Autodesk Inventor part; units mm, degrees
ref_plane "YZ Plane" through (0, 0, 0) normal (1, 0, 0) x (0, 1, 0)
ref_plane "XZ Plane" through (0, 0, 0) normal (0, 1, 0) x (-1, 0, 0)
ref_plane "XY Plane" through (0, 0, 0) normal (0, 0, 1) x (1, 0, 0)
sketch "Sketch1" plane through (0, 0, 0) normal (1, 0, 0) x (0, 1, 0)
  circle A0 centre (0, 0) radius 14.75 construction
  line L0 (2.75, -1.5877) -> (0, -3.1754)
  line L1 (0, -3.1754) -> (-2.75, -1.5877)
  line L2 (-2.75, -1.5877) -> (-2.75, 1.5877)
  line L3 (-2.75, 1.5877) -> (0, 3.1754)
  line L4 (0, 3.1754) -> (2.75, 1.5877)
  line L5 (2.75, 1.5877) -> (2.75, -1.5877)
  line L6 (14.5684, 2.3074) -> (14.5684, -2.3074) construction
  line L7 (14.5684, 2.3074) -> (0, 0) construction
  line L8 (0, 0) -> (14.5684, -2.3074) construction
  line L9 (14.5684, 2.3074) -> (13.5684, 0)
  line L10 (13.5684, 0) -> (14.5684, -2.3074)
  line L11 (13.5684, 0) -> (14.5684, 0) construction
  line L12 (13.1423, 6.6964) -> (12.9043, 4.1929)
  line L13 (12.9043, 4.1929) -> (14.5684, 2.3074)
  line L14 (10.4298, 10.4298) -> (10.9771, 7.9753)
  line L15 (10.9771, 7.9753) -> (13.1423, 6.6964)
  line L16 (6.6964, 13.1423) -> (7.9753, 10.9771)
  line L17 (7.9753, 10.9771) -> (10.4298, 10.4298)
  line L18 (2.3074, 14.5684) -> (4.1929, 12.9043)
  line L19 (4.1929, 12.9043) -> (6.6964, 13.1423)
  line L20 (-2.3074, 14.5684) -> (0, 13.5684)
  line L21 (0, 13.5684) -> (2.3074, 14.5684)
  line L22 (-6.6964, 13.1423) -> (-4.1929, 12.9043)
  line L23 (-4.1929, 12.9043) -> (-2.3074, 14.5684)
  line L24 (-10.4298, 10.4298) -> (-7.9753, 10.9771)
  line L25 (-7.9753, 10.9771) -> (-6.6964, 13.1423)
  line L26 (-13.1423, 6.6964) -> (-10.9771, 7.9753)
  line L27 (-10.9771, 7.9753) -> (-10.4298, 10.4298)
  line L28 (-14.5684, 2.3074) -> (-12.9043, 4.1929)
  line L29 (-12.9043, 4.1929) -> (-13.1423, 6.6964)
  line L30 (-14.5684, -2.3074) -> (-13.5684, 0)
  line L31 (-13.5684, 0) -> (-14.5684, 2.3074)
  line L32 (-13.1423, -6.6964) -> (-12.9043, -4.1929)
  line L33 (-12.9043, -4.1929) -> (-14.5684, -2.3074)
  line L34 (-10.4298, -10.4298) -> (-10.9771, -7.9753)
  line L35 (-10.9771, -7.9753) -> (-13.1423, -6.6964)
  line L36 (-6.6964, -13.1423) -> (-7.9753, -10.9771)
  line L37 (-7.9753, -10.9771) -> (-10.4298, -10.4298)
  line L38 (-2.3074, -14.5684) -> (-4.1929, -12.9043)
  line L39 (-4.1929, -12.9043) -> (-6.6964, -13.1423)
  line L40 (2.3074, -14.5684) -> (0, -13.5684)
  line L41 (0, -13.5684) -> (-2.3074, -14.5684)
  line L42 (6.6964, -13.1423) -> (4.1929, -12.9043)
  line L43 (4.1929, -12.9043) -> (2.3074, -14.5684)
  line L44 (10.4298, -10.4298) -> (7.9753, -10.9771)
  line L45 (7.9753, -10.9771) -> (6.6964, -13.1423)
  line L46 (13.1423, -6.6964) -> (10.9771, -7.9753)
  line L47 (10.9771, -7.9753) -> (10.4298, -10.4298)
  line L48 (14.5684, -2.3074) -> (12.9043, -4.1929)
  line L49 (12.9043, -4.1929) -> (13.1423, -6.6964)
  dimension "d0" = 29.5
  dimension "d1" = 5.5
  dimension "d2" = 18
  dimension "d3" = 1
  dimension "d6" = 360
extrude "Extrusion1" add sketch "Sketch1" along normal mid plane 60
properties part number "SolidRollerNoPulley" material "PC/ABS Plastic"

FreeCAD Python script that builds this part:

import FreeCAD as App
import Part
import Sketcher
from FreeCAD import Vector
Q = App.Units.Quantity

doc = App.newDocument("Part")
body = doc.addObject("PartDesign::Body", "Body")

# Sketch on YZ plane
sketch1 = doc.addObject("Sketcher::SketchObject", "Sketch")
body.addObject(sketch1)
sketch1.AttachmentSupport = (doc.YZ_Plane, [""])
sketch1.MapMode = "FlatFace"
sketch1.addGeometry([
    Part.LineSegment(Vector(13.6, 0, 0), Vector(14.6, 2.3, 0)),  # 0
    Part.LineSegment(Vector(14.6, 2.3, 0), Vector(12.9, 4.2, 0)),  # 1
    Part.LineSegment(Vector(12.9, 4.2, 0), Vector(13.1, 6.7, 0)),  # 2
    Part.LineSegment(Vector(13.1, 6.7, 0), Vector(11, 8, 0)),  # 3
    Part.LineSegment(Vector(11, 8, 0), Vector(10.4, 10.4, 0)),  # 4
    Part.LineSegment(Vector(10.4, 10.4, 0), Vector(8, 11, 0)),  # 5
    Part.LineSegment(Vector(8, 11, 0), Vector(6.7, 13.1, 0)),  # 6
    Part.LineSegment(Vector(6.7, 13.1, 0), Vector(4.2, 12.9, 0)),  # 7
    Part.LineSegment(Vector(4.2, 12.9, 0), Vector(2.3, 14.6, 0)),  # 8
    Part.LineSegment(Vector(2.3, 14.6, 0), Vector(0, 13.6, 0)),  # 9
    Part.LineSegment(Vector(0, 13.6, 0), Vector(-2.3, 14.6, 0)),  # 10
    Part.LineSegment(Vector(-2.3, 14.6, 0), Vector(-4.2, 12.9, 0)),  # 11
    Part.LineSegment(Vector(-4.2, 12.9, 0), Vector(-6.7, 13.1, 0)),  # 12
    Part.LineSegment(Vector(-6.7, 13.1, 0), Vector(-8, 11, 0)),  # 13
    Part.LineSegment(Vector(-8, 11, 0), Vector(-10.4, 10.4, 0)),  # 14
    Part.LineSegment(Vector(-10.4, 10.4, 0), Vector(-11, 8, 0)),  # 15
    Part.LineSegment(Vector(-11, 8, 0), Vector(-13.1, 6.7, 0)),  # 16
    Part.LineSegment(Vector(-13.1, 6.7, 0), Vector(-12.9, 4.2, 0)),  # 17
    Part.LineSegment(Vector(-12.9, 4.2, 0), Vector(-14.6, 2.3, 0)),  # 18
    Part.LineSegment(Vector(-14.6, 2.3, 0), Vector(-13.6, 0, 0)),  # 19
    Part.LineSegment(Vector(-13.6, 0, 0), Vector(-14.6, -2.3, 0)),  # 20
    Part.LineSegment(Vector(-14.6, -2.3, 0), Vector(-12.9, -4.2, 0)),  # 21
    Part.LineSegment(Vector(-12.9, -4.2, 0), Vector(-13.1, -6.7, 0)),  # 22
    Part.LineSegment(Vector(-13.1, -6.7, 0), Vector(-11, -8, 0)),  # 23
    Part.LineSegment(Vector(-11, -8, 0), Vector(-10.4, -10.4, 0)),  # 24
    Part.LineSegment(Vector(-10.4, -10.4, 0), Vector(-8, -11, 0)),  # 25
    Part.LineSegment(Vector(-8, -11, 0), Vector(-6.7, -13.1, 0)),  # 26
    Part.LineSegment(Vector(-6.7, -13.1, 0), Vector(-4.2, -12.9, 0)),  # 27
    Part.LineSegment(Vector(-4.2, -12.9, 0), Vector(-2.3, -14.6, 0)),  # 28
    Part.LineSegment(Vector(-2.3, -14.6, 0), Vector(0, -13.6, 0)),  # 29
    Part.LineSegment(Vector(0, -13.6, 0), Vector(2.3, -14.6, 0)),  # 30
    Part.LineSegment(Vector(2.3, -14.6, 0), Vector(4.2, -12.9, 0)),  # 31
    Part.LineSegment(Vector(4.2, -12.9, 0), Vector(6.7, -13.1, 0)),  # 32
    Part.LineSegment(Vector(6.7, -13.1, 0), Vector(8, -11, 0)),  # 33
    Part.LineSegment(Vector(8, -11, 0), Vector(10.4, -10.4, 0)),  # 34
    Part.LineSegment(Vector(10.4, -10.4, 0), Vector(11, -8, 0)),  # 35
    Part.LineSegment(Vector(11, -8, 0), Vector(13.1, -6.7, 0)),  # 36
    Part.LineSegment(Vector(13.1, -6.7, 0), Vector(12.9, -4.2, 0)),  # 37
    Part.LineSegment(Vector(12.9, -4.2, 0), Vector(14.6, -2.3, 0)),  # 38
    Part.LineSegment(Vector(14.6, -2.3, 0), Vector(13.6, 0, 0)),  # 39
    Part.LineSegment(Vector(2.8, 1.6, 0), Vector(2.8, -1.6, 0)),  # 40
    Part.LineSegment(Vector(2.8, -1.6, 0), Vector(0, -3.2, 0)),  # 41
    Part.LineSegment(Vector(0, -3.2, 0), Vector(-2.8, -1.6, 0)),  # 42
    Part.LineSegment(Vector(-2.8, -1.6, 0), Vector(-2.8, 1.6, 0)),  # 43
    Part.LineSegment(Vector(-2.8, 1.6, 0), Vector(0, 3.2, 0)),  # 44
    Part.LineSegment(Vector(0, 3.2, 0), Vector(2.8, 1.6, 0)),  # 45
], False)
sketch1.addConstraint([
    Sketcher.Constraint("Coincident", 0, 2, 1, 1),
    Sketcher.Constraint("Coincident", 1, 2, 2, 1),
    Sketcher.Constraint("Coincident", 2, 2, 3, 1),
    Sketcher.Constraint("Coincident", 3, 2, 4, 1),
    Sketcher.Constraint("Coincident", 4, 2, 5, 1),
    Sketcher.Constraint("Coincident", 5, 2, 6, 1),
    Sketcher.Constraint("Coincident", 6, 2, 7, 1),
    Sketcher.Constraint("Coincident", 7, 2, 8, 1),
    Sketcher.Constraint("Coincident", 8, 2, 9, 1),
    Sketcher.Constraint("Coincident", 9, 2, 10, 1),
    Sketcher.Constraint("Coincident", 10, 2, 11, 1),
    Sketcher.Constraint("Coincident", 11, 2, 12, 1),
    Sketcher.Constraint("Coincident", 12, 2, 13, 1),
    Sketcher.Constraint("Coincident", 13, 2, 14, 1),
    Sketcher.Constraint("Coincident", 14, 2, 15, 1),
    Sketcher.Constraint("Coincident", 15, 2, 16, 1),
    Sketcher.Constraint("Coincident", 16, 2, 17, 1),
    Sketcher.Constraint("Coincident", 17, 2, 18, 1),
    Sketcher.Constraint("Coincident", 18, 2, 19, 1),
    Sketcher.Constraint("Coincident", 19, 2, 20, 1),
    Sketcher.Constraint("Coincident", 20, 2, 21, 1),
    Sketcher.Constraint("Coincident", 21, 2, 22, 1),
    Sketcher.Constraint("Coincident", 22, 2, 23, 1),
    Sketcher.Constraint("Coincident", 23, 2, 24, 1),
    Sketcher.Constraint("Coincident", 24, 2, 25, 1),
    Sketcher.Constraint("Coincident", 25, 2, 26, 1),
    Sketcher.Constraint("Coincident", 26, 2, 27, 1),
    Sketcher.Constraint("Coincident", 27, 2, 28, 1),
    Sketcher.Constraint("Coincident", 28, 2, 29, 1),
    Sketcher.Constraint("Coincident", 29, 2, 30, 1),
    Sketcher.Constraint("Coincident", 30, 2, 31, 1),
    Sketcher.Constraint("Coincident", 31, 2, 32, 1),
    Sketcher.Constraint("Coincident", 32, 2, 33, 1),
    Sketcher.Constraint("Coincident", 33, 2, 34, 1),
    Sketcher.Constraint("Coincident", 34, 2, 35, 1),
    Sketcher.Constraint("Coincident", 35, 2, 36, 1),
    Sketcher.Constraint("Coincident", 36, 2, 37, 1),
    Sketcher.Constraint("Coincident", 37, 2, 38, 1),
    Sketcher.Constraint("Coincident", 38, 2, 39, 1),
    Sketcher.Constraint("Coincident", 39, 2, 0, 1),
    Sketcher.Constraint("Coincident", 40, 2, 41, 1),
    Sketcher.Constraint("Coincident", 41, 2, 42, 1),
    Sketcher.Constraint("Coincident", 42, 2, 43, 1),
    Sketcher.Constraint("Coincident", 43, 2, 44, 1),
    Sketcher.Constraint("Coincident", 44, 2, 45, 1),
    Sketcher.Constraint("Coincident", 45, 2, 40, 1),
    Sketcher.Constraint("Vertical", 40),
    Sketcher.Constraint("Vertical", 43),
    Sketcher.Constraint("Symmetric", 0, 2, 20, 2, -1, 1),
    Sketcher.Constraint("Symmetric", 1, 2, 21, 2, -1, 1),
    Sketcher.Constraint("Symmetric", 2, 2, 22, 2, -1, 1),
    Sketcher.Constraint("Symmetric", 3, 2, 23, 2, -1, 1),
    Sketcher.Constraint("Symmetric", 4, 2, 24, 2, -1, 1),
    Sketcher.Constraint("Symmetric", 5, 2, 25, 2, -1, 1),
    Sketcher.Constraint("Symmetric", 6, 2, 26, 2, -1, 1),
    Sketcher.Constraint("Symmetric", 7, 2, 27, 2, -1, 1),
    Sketcher.Constraint("Symmetric", 8, 2, 28, 2, -1, 1),
    Sketcher.Constraint("Symmetric", 9, 2, 29, 2, -1, 1),
    Sketcher.Constraint("Symmetric", 10, 2, 30, 2, -1, 1),
    Sketcher.Constraint("Symmetric", 11, 2, 31, 2, -1, 1),
    Sketcher.Constraint("Symmetric", 12, 2, 32, 2, -1, 1),
    Sketcher.Constraint("Symmetric", 13, 2, 33, 2, -1, 1),
    Sketcher.Constraint("Symmetric", 14, 2, 34, 2, -1, 1),
    Sketcher.Constraint("Symmetric", 15, 2, 35, 2, -1, 1),
    Sketcher.Constraint("Symmetric", 16, 2, 36, 2, -1, 1),
    Sketcher.Constraint("Symmetric", 17, 2, 37, 2, -1, 1),
    Sketcher.Constraint("Symmetric", 18, 2, 38, 2, -1, 1),
    Sketcher.Constraint("Symmetric", 19, 2, 39, 2, -1, 1),
    Sketcher.Constraint("Symmetric", 40, 2, 43, 2, -1, 1),
    Sketcher.Constraint("Symmetric", 41, 2, 44, 2, -1, 1),
    Sketcher.Constraint("Symmetric", 8, 2, 10, 2, -2),
    Sketcher.Constraint("Symmetric", 7, 2, 11, 2, -2),
    Sketcher.Constraint("Symmetric", 6, 2, 12, 2, -2),
    Sketcher.Constraint("Symmetric", 5, 2, 13, 2, -2),
    Sketcher.Constraint("Symmetric", 4, 2, 14, 2, -2),
    Sketcher.Constraint("Symmetric", 3, 2, 15, 2, -2),
    Sketcher.Constraint("Symmetric", 2, 2, 16, 2, -2),
    Sketcher.Constraint("Symmetric", 1, 2, 17, 2, -2),
    Sketcher.Constraint("Symmetric", 0, 2, 18, 2, -2),
    Sketcher.Constraint("PointOnObject", 9, 2, -2),
    Sketcher.Constraint("PointOnObject", 19, 2, -1),
    Sketcher.Constraint("PointOnObject", 41, 2, -2),
    Sketcher.Constraint("Perpendicular", 0, 10),
    Sketcher.Constraint("Perpendicular", 1, 11),
    Sketcher.Constraint("Perpendicular", 2, 12),
    Sketcher.Constraint("Perpendicular", 3, 13),
    Sketcher.Constraint("Perpendicular", 4, 14),
    Sketcher.Constraint("Parallel", 42, 45),
    Sketcher.Constraint("Horizontal", 40, 2, 42, 2),
    Sketcher.Constraint("Equal", 0, 1),
    Sketcher.Constraint("Equal", 1, 2),
    Sketcher.Constraint("Equal", 2, 3),
    Sketcher.Constraint("Equal", 3, 4),
    Sketcher.Constraint("Equal", 4, 5),
    Sketcher.Constraint("Equal", 5, 6),
    Sketcher.Constraint("Equal", 6, 7),
    Sketcher.Constraint("Equal", 7, 8),
    Sketcher.Constraint("Equal", 8, 9),
    Sketcher.Constraint("Angle", 41, Q("-150.0002 deg")),
    Sketcher.Constraint("Angle", 1, Q("131.431 deg")),
    Sketcher.Constraint("Angle", 2, Q("84.5694 deg")),
    Sketcher.Constraint("Angle", 4, Q("102.57 deg")),
    Sketcher.Constraint("DistanceY", 9, 2, 8, 2, 1.0),
    Sketcher.Constraint("DistanceX", 42, 2, 40, 2, 5.5),
    Sketcher.Constraint("Distance", 0, Q("0.099 in")),
    Sketcher.Constraint("DistanceY", -1, 1, 3, 2, Q("0.314 in")),
    Sketcher.Constraint("DistanceY", 40, 2, -1, 1, Q("0.0625 in")),
])
pad1 = doc.addObject("PartDesign::Pad", "Pad")
body.addObject(pad1)
pad1.Profile = sketch1
pad1.Length = Q("2.3622047 in")
pad1.Midplane = True

doc.recompute()
